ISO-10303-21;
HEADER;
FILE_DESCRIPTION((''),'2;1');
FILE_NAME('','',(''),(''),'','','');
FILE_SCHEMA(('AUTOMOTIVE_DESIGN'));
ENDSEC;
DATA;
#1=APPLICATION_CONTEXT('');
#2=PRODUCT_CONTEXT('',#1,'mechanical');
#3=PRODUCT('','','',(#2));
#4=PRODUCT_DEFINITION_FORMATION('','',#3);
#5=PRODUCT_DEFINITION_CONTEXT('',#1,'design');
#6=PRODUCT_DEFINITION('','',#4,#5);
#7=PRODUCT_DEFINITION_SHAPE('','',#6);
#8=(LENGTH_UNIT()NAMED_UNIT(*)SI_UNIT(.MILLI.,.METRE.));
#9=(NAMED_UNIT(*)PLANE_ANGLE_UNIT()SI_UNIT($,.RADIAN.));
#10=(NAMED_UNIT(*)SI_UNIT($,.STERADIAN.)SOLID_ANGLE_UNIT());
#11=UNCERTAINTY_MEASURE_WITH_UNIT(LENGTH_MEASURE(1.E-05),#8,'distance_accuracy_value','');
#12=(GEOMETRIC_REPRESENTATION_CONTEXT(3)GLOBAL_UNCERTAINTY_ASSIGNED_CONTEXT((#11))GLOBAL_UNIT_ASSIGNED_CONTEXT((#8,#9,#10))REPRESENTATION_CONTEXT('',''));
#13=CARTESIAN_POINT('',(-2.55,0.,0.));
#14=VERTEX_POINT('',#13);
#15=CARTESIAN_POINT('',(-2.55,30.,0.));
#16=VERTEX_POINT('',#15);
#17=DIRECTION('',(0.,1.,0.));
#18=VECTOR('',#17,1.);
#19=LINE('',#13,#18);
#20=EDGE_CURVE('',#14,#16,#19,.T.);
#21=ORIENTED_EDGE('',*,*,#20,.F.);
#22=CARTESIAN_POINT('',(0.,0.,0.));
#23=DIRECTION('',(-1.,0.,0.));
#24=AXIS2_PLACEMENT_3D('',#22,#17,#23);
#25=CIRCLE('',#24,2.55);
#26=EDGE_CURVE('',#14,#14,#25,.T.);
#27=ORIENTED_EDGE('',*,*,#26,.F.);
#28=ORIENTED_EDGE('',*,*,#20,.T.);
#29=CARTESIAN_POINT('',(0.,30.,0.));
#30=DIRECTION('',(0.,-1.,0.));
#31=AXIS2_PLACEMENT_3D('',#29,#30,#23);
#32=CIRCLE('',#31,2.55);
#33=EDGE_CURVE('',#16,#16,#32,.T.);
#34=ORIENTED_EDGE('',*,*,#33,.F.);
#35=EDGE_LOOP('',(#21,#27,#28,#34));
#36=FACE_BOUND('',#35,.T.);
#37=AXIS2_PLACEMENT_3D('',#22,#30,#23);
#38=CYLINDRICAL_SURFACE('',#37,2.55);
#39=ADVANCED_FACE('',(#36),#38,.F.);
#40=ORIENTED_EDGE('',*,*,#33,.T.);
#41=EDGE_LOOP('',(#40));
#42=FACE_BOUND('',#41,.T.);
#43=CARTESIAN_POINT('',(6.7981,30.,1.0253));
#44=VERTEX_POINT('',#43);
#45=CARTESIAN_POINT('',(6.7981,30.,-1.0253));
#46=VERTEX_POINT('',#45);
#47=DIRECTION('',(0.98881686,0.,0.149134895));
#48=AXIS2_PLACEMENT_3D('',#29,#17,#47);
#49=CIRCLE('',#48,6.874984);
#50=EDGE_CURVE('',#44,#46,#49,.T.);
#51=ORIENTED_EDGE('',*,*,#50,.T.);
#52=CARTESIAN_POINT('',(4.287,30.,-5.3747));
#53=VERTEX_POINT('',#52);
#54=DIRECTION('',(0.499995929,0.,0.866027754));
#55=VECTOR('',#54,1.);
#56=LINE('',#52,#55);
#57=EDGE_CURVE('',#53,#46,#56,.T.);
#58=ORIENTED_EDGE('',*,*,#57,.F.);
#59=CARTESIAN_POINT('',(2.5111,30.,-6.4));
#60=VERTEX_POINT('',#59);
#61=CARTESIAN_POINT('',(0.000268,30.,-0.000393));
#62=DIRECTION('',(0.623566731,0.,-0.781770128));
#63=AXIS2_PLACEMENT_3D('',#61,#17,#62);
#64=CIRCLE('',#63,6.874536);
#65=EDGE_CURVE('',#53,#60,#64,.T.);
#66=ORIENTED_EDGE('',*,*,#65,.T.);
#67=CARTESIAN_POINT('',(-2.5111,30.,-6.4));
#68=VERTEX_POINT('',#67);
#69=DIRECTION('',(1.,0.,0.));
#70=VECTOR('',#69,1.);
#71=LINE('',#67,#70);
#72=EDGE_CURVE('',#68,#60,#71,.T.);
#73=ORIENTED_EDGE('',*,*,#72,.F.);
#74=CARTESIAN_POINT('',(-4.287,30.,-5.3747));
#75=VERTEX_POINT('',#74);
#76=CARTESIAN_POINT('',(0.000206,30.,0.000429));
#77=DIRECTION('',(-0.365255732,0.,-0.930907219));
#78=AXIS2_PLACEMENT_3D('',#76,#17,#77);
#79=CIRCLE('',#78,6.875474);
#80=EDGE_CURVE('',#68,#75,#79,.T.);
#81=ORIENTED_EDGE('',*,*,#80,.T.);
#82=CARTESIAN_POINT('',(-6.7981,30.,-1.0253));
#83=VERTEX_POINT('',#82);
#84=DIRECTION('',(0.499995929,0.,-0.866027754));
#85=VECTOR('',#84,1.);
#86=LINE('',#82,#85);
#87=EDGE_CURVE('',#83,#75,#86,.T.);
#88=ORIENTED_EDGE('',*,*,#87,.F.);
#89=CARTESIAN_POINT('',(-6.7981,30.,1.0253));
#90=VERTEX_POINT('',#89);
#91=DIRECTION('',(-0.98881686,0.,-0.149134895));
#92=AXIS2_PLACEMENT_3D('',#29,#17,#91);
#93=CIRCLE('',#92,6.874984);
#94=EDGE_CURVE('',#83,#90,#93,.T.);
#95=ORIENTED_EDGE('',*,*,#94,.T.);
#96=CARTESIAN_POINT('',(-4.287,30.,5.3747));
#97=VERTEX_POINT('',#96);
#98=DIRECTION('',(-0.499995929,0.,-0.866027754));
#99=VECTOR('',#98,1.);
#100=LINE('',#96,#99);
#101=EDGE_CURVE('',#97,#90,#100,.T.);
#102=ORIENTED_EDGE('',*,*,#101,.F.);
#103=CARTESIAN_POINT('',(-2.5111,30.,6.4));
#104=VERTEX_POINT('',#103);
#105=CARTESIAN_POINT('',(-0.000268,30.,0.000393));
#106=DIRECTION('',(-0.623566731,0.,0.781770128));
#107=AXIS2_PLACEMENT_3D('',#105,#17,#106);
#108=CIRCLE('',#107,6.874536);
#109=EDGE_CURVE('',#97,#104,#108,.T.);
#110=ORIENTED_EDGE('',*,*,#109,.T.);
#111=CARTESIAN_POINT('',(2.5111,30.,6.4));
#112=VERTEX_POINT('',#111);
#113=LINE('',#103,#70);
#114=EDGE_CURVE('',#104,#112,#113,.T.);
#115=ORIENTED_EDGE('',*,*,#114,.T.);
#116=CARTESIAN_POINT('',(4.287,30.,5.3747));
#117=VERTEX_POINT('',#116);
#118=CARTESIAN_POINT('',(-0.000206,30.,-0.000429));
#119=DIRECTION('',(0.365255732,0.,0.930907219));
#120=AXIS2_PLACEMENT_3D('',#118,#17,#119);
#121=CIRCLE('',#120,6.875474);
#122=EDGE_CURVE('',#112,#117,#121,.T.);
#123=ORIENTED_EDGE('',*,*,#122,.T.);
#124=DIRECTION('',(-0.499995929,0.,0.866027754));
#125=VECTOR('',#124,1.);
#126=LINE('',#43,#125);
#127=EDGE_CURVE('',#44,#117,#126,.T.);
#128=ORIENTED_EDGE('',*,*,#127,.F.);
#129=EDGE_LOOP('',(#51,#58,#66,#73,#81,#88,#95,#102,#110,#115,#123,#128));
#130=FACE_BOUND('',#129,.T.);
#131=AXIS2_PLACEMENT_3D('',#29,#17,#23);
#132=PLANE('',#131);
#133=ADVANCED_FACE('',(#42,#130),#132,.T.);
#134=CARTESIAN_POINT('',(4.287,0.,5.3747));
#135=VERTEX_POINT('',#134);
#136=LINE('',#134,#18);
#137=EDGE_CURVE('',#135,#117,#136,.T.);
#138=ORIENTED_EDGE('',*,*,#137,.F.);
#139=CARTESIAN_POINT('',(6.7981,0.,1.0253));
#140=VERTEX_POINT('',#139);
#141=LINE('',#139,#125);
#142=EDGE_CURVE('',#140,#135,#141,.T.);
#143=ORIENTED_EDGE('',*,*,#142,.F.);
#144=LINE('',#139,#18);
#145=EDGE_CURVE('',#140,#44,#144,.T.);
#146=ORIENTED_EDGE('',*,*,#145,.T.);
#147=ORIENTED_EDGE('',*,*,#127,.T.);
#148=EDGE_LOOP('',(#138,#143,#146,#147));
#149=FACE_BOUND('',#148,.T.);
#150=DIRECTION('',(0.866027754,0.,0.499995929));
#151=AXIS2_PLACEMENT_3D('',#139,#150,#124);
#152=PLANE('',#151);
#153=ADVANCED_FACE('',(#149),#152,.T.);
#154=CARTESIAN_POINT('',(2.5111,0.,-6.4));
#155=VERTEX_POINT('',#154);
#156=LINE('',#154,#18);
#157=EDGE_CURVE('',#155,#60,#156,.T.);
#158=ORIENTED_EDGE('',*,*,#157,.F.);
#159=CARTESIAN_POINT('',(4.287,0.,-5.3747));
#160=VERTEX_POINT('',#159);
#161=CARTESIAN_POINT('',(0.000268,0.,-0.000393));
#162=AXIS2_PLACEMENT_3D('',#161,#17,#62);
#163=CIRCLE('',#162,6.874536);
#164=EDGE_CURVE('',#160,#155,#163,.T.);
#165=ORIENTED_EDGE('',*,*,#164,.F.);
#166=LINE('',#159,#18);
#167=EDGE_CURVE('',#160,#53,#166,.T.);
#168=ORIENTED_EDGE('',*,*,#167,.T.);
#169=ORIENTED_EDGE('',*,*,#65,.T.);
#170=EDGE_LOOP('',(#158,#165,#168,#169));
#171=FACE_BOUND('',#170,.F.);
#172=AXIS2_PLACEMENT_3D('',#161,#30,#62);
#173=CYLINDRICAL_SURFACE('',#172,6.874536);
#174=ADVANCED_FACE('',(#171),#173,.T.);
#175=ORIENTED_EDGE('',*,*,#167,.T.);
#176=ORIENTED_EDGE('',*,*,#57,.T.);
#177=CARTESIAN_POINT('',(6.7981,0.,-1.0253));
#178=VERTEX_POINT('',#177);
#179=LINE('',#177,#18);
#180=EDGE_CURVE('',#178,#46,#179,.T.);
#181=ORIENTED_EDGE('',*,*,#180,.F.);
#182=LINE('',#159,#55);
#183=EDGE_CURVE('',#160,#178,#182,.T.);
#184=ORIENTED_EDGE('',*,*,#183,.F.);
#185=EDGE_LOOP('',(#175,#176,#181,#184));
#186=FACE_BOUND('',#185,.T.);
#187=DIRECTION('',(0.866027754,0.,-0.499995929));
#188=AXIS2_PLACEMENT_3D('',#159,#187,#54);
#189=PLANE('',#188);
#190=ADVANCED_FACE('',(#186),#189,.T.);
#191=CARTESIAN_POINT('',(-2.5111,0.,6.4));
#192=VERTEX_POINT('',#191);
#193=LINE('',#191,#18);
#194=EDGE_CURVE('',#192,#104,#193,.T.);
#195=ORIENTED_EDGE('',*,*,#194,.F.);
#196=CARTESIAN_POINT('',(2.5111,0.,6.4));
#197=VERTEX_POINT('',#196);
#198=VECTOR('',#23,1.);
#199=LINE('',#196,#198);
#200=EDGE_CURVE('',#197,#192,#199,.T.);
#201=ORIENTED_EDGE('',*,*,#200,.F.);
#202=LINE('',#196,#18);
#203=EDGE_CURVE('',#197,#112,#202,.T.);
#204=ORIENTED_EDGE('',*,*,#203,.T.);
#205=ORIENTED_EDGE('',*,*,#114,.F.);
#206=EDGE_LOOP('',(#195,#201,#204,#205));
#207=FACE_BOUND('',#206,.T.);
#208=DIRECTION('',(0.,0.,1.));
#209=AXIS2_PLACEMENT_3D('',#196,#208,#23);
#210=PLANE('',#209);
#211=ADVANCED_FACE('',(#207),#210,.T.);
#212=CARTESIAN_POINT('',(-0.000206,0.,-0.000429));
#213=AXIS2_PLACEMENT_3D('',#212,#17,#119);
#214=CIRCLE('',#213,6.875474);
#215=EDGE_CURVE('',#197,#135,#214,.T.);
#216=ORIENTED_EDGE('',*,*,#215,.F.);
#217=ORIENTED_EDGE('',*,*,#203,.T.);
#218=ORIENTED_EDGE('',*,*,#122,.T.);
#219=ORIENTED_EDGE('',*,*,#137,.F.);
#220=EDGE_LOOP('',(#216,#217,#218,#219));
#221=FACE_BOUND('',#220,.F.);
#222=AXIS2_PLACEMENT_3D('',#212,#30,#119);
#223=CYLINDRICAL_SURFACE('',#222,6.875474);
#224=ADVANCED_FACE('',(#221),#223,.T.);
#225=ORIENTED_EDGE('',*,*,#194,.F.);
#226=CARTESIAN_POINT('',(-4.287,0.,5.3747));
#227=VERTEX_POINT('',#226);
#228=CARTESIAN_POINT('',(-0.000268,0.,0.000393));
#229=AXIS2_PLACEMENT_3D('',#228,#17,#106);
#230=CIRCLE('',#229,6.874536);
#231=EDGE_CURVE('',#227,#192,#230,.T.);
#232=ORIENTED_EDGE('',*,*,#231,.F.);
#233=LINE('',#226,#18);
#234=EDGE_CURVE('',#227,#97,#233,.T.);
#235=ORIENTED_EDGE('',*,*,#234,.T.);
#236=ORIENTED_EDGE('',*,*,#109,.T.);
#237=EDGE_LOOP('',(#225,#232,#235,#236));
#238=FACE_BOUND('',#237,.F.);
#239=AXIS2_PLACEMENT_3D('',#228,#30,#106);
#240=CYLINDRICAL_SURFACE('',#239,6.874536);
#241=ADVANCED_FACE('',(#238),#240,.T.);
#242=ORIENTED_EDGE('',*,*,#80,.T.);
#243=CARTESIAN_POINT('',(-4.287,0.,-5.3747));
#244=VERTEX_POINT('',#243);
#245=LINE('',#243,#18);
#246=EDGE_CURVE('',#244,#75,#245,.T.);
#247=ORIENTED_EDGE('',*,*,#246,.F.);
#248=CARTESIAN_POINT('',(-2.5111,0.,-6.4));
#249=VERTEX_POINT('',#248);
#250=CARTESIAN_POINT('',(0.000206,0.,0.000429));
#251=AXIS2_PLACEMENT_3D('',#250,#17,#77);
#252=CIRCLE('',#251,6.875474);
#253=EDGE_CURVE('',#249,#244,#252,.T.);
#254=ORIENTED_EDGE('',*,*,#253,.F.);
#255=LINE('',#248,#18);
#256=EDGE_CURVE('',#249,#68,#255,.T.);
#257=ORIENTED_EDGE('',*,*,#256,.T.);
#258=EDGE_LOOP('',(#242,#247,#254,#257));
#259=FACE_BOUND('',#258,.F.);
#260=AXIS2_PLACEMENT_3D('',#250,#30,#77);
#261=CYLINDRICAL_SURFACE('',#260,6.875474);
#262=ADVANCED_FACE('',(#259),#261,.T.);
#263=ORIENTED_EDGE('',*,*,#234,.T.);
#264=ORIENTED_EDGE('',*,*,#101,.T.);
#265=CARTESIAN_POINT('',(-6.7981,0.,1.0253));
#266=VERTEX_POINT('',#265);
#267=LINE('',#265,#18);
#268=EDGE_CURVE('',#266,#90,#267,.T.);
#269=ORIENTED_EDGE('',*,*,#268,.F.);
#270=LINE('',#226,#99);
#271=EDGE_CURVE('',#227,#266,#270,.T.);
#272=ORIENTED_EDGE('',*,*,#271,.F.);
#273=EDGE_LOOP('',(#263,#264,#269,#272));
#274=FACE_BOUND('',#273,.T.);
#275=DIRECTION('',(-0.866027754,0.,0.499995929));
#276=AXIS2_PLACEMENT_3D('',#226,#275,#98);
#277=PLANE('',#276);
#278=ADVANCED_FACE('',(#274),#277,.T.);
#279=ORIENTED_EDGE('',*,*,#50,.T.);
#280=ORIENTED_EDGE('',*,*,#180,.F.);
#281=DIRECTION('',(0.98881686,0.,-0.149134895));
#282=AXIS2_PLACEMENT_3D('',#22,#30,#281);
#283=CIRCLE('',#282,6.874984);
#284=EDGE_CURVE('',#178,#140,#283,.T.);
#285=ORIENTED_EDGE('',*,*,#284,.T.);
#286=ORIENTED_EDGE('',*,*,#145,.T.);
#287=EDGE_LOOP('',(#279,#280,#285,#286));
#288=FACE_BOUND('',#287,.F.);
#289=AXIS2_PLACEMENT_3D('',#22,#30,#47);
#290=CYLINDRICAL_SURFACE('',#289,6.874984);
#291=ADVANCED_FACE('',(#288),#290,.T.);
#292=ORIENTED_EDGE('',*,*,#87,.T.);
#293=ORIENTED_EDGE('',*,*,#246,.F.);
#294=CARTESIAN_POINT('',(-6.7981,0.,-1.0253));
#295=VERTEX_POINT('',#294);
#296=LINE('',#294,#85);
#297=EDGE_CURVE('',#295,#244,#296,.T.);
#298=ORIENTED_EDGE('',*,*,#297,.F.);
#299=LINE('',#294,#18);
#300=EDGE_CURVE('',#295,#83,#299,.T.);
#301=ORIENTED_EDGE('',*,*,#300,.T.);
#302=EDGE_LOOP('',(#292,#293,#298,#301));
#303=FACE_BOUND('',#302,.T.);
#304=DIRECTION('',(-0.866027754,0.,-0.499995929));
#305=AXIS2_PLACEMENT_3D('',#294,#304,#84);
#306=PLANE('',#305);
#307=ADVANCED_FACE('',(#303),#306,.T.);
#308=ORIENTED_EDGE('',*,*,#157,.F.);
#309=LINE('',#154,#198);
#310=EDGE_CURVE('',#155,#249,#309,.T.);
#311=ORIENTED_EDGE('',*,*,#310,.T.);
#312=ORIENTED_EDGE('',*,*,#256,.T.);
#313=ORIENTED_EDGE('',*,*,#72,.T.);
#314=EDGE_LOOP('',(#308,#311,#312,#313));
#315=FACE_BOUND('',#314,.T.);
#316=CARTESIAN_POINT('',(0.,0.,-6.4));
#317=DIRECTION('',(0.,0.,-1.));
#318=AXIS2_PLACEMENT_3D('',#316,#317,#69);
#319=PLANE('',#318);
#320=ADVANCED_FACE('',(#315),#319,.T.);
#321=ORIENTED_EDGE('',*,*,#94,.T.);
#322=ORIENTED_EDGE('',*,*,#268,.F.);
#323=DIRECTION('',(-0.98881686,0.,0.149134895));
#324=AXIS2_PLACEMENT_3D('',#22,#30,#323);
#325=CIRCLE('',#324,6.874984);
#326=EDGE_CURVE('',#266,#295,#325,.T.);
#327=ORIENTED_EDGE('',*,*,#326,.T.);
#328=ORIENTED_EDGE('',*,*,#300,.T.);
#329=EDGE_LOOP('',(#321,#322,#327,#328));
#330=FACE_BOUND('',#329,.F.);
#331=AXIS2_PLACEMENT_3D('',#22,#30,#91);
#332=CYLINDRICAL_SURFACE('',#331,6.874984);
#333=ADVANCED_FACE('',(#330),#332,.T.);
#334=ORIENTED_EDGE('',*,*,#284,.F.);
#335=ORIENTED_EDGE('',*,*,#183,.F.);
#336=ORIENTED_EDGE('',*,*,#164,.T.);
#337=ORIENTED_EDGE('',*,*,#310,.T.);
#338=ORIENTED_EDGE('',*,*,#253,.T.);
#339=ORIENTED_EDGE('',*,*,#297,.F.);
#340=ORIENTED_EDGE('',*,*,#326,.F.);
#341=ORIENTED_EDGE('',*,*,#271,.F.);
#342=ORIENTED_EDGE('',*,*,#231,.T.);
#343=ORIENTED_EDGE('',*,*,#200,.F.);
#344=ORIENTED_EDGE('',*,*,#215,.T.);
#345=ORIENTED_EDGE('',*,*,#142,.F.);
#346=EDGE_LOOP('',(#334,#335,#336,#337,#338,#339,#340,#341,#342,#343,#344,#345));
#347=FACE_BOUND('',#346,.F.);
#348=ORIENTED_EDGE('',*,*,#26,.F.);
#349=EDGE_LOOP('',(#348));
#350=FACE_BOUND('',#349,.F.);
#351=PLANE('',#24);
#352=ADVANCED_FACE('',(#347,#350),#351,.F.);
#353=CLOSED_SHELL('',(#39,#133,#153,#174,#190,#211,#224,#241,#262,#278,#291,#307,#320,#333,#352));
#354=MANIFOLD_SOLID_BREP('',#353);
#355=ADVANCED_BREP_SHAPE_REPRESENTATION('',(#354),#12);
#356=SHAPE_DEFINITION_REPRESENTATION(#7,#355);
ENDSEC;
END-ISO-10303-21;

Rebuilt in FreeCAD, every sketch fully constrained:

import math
import FreeCAD as App
import Part
import Sketcher
from FreeCAD import Vector
Q = App.Units.Quantity

doc = App.newDocument("Part")
body = doc.addObject("PartDesign::Body", "Body")

# Sketch on XZ plane
sketch1 = body.newObject("Sketcher::SketchObject", "Sketch")
sketch1.AttachmentSupport = (doc.getObject("XZ_Plane"), [""])
sketch1.MapMode = "FlatFace"
sketch1.addGeometry([
    Part.LineSegment(Vector(2.5, -6.4, 0), Vector(-2.5, -6.4, 0)),  # 0
    Part.ArcOfCircle(Part.Circle(Vector(0, 0, 0), Vector(0, 0, 1), 6.9), math.radians(-128.58), math.radians(-111.42)),  # 1
    Part.LineSegment(Vector(-4.3, -5.4, 0), Vector(-6.8, -1, 0)),  # 2
    Part.ArcOfCircle(Part.Circle(Vector(0, 0, 0), Vector(0, 0, 1), 6.9), math.radians(171.42), math.radians(188.58)),  # 3
    Part.LineSegment(Vector(-6.8, 1, 0), Vector(-4.3, 5.4, 0)),  # 4
    Part.ArcOfCircle(Part.Circle(Vector(0, 0, 0), Vector(0, 0, 1), 6.9), math.radians(111.42), math.radians(128.58)),  # 5
    Part.LineSegment(Vector(-2.5, 6.4, 0), Vector(2.5, 6.4, 0)),  # 6
    Part.ArcOfCircle(Part.Circle(Vector(0, 0, 0), Vector(0, 0, 1), 6.9), math.radians(51.42), math.radians(68.58)),  # 7
    Part.LineSegment(Vector(4.3, 5.4, 0), Vector(6.8, 1, 0)),  # 8
    Part.ArcOfCircle(Part.Circle(Vector(0, 0, 0), Vector(0, 0, 1), 6.9), math.radians(-8.58), math.radians(8.58)),  # 9
    Part.LineSegment(Vector(6.8, -1, 0), Vector(4.3, -5.4, 0)),  # 10
    Part.ArcOfCircle(Part.Circle(Vector(0, 0, 0), Vector(0, 0, 1), 6.9), math.radians(-68.58), math.radians(-51.42)),  # 11
    Part.Circle(Vector(0, 0, 0), Vector(0, 0, 1), 2.5),  # 12
], False)
sketch1.addConstraint([
    Sketcher.Constraint("Coincident", 0, 2, 1, 2),
    Sketcher.Constraint("Coincident", 1, 1, 2, 1),
    Sketcher.Constraint("Coincident", 2, 2, 3, 2),
    Sketcher.Constraint("Coincident", 3, 1, 4, 1),
    Sketcher.Constraint("Coincident", 4, 2, 5, 2),
    Sketcher.Constraint("Coincident", 5, 1, 6, 1),
    Sketcher.Constraint("Coincident", 6, 2, 7, 2),
    Sketcher.Constraint("Coincident", 7, 1, 8, 1),
    Sketcher.Constraint("Coincident", 8, 2, 9, 2),
    Sketcher.Constraint("Coincident", 9, 1, 10, 1),
    Sketcher.Constraint("Coincident", 10, 2, 11, 2),
    Sketcher.Constraint("Coincident", 11, 1, 0, 1),
    Sketcher.Constraint("Horizontal", 0),
    Sketcher.Constraint("Horizontal", 6),
    Sketcher.Constraint("Coincident", 1, 3, -1, 1),
    Sketcher.Constraint("Coincident", 3, 3, -1, 1),
    Sketcher.Constraint("Coincident", 5, 3, -1, 1),
    Sketcher.Constraint("Coincident", 7, 3, -1, 1),
    Sketcher.Constraint("Coincident", 9, 3, -1, 1),
    Sketcher.Constraint("Coincident", 11, 3, -1, 1),
    Sketcher.Constraint("Coincident", 12, 3, -1, 1),
    Sketcher.Constraint("Equal", 1, 3),
    Sketcher.Constraint("Equal", 3, 5),
    Sketcher.Constraint("Equal", 5, 7),
    Sketcher.Constraint("Equal", 7, 9),
    Sketcher.Constraint("Equal", 9, 11),
    Sketcher.Constraint("Parallel", 2, 8),
    Sketcher.Constraint("Parallel", 4, 10),
    Sketcher.Constraint("Horizontal", 4, 2, 7, 1),
    Sketcher.Constraint("Horizontal", 3, 1, 8, 2),
    Sketcher.Constraint("Horizontal", 2, 2, 9, 1),
    Sketcher.Constraint("Vertical", 2, 2, 3, 1),
    Sketcher.Constraint("Vertical", 0, 2, 5, 1),
    Sketcher.Constraint("Diameter", 12, 5.1),
    Sketcher.Constraint("Angle", 2, Q("119.9997 deg")),
    Sketcher.Constraint("Radius", 1, 6.875),
    Sketcher.Constraint("DistanceY", 0, 2, -1, 1, 6.4),
    Sketcher.Constraint("DistanceY", 2, 2, 4, 2, 6.4),
])
pad1 = body.newObject("PartDesign::Pad", "Pad")
pad1.Profile = sketch1
pad1.Length = 30
pad1.Reversed = True

doc.recompute()
